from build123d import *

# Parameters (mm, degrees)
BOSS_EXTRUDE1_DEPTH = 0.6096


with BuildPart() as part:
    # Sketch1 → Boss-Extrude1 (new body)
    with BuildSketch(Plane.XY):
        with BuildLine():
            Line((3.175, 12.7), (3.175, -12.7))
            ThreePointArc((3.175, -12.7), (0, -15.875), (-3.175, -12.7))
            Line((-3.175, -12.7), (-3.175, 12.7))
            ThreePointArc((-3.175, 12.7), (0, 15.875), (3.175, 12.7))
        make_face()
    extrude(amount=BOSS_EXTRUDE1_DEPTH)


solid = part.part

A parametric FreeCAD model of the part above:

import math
import FreeCAD as App
import Part
import Sketcher
Q = App.Units.Quantity

doc = App.newDocument("Part")
body = doc.addObject("PartDesign::Body", "Body")

sketch1 = body.newObject("Sketcher::SketchObject", "Sketch")
sketch1.AttachmentSupport = (doc.getObject("XY_Plane"), [""])
sketch1.MapMode = "FlatFace"
sketch1.addGeometry(Part.LineSegment(App.Vector(3.175, -12.7, 0), App.Vector(3.175, 12.7, 0)), False)
sketch1.addGeometry(Part.ArcOfCircle(Part.Circle(App.Vector(0, 12.7, 0), App.Vector(0, 0, 1), 3.175), math.radians(0), math.radians(180)), False)
sketch1.addGeometry(Part.LineSegment(App.Vector(-3.175, 12.7, 0), App.Vector(-3.175, -12.7, 0)), False)
sketch1.addGeometry(Part.ArcOfCircle(Part.Circle(App.Vector(0, -12.7, 0), App.Vector(0, 0, 1), 3.175), math.radians(180), math.radians(360)), False)
sketch1.addConstraint(Sketcher.Constraint("Tangent", 0, 2, 1, 1))
sketch1.addConstraint(Sketcher.Constraint("Tangent", 1, 2, 2, 1))
sketch1.addConstraint(Sketcher.Constraint("Tangent", 2, 2, 3, 1))
sketch1.addConstraint(Sketcher.Constraint("Tangent", 3, 2, 0, 1))
sketch1.addConstraint(Sketcher.Constraint("Vertical", 0))
sketch1.addConstraint(Sketcher.Constraint("Vertical", 2))
sketch1.addConstraint(Sketcher.Constraint("Symmetric", 1, 3, 3, 3, -1, 1))
sketch1.addConstraint(Sketcher.Constraint("DistanceY", 0, 1, 0, 2, Q("1 in")))
sketch1.addConstraint(Sketcher.Constraint("Radius", 1, Q("0.125 in")))
pad1 = body.newObject("PartDesign::Pad", "Pad")
pad1.Profile = sketch1
pad1.Length = Q("0.024 in")

doc.recompute()
